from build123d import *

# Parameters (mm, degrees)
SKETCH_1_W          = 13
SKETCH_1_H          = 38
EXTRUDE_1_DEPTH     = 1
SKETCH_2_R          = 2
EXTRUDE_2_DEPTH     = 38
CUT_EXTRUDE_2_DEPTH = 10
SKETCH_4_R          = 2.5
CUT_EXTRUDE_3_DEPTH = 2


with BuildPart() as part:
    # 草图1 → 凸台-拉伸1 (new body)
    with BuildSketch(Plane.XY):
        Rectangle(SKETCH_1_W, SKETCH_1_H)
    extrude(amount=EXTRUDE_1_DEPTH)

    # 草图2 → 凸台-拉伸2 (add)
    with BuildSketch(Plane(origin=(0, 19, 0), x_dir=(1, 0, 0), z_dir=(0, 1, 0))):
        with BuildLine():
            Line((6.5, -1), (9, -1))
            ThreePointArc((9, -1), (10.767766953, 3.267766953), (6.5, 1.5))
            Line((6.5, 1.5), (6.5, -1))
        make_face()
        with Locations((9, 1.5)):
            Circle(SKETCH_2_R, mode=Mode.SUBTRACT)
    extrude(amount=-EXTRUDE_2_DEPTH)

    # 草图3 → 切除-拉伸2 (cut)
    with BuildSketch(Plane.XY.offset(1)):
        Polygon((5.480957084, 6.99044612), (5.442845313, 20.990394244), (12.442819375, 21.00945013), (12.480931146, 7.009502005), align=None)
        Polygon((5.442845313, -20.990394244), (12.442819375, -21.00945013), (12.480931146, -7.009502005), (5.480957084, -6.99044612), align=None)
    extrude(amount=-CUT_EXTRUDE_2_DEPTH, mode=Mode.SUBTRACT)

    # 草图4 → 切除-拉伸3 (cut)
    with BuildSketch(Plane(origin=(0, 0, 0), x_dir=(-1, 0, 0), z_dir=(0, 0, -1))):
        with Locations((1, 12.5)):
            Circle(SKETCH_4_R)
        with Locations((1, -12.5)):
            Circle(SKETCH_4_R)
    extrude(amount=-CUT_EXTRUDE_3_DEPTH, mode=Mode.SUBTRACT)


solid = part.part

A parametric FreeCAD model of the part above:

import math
import FreeCAD as App
import Part
import Sketcher
from FreeCAD import Vector


def add_polygon(sketch, points):
    """Adds a closed chain of lines whose ends are joined by coincident constraints."""
    first, n = sketch.GeometryCount, len(points)
    for a, b in zip(points, points[1:] + points[:1]):
        sketch.addGeometry(Part.LineSegment(App.Vector(*a, 0), App.Vector(*b, 0)), False)
    for i in range(n):
        sketch.addConstraint(Sketcher.Constraint("Coincident", first + i, 2, first + (i + 1) % n, 1))

doc = App.newDocument("Part")
body = doc.addObject("PartDesign::Body", "Body")

sketch1 = doc.addObject("Sketcher::SketchObject", "Sketch")
body.addObject(sketch1)
sketch1.AttachmentSupport = (doc.XY_Plane, [""])
sketch1.MapMode = "FlatFace"
add_polygon(sketch1, [(-6, 19), (-6, -19), (6, -19), (6, 19)])
sketch1.addConstraint([
    Sketcher.Constraint("Vertical", 0),
    Sketcher.Constraint("Horizontal", 1),
    Sketcher.Constraint("Vertical", 2),
    Sketcher.Constraint("Horizontal", 3),
    Sketcher.Constraint("Symmetric", 0, 2, 2, 2, -1, 1),
    Sketcher.Constraint("DistanceX", 1, 1, 1, 2, 13.0),
    Sketcher.Constraint("DistanceY", 0, 2, 0, 1, 38.0),
])
pad1 = doc.addObject("PartDesign::Pad", "Pad")
body.addObject(pad1)
pad1.Profile = sketch1
pad1.Length = 1

sketch2 = doc.addObject("Sketcher::SketchObject", "Sketch001")
body.addObject(sketch2)
sketch2.AttachmentSupport = (doc.XZ_Plane, [""])
sketch2.MapMode = "FlatFace"
sketch2.AttachmentOffset = App.Placement(Vector(0, 0, -19), App.Rotation())
sketch2.addGeometry([
    Part.LineSegment(Vector(6.5, 1, 0), Vector(9, 1, 0)),
    Part.ArcOfCircle(Part.Circle(Vector(9, -1.5, 0), Vector(0, 0, 1), 2.5), math.radians(180), math.radians(450)),
    Part.LineSegment(Vector(6.5, -1.5, 0), Vector(6.5, 1, 0)),
    Part.Circle(Vector(9, -1.5, 0), Vector(0, 0, 1), 2),
], False)
sketch2.addConstraint([
    Sketcher.Constraint("Tangent", 0, 2, 1, 2),
    Sketcher.Constraint("Tangent", 1, 1, 2, 1),
    Sketcher.Constraint("Coincident", 2, 2, 0, 1),
    Sketcher.Constraint("Horizontal", 0),
    Sketcher.Constraint("Vertical", 2),
    Sketcher.Constraint("Coincident", 3, 3, 1, 3),
    Sketcher.Constraint("Diameter", 3, 4.0),
    Sketcher.Constraint("Radius", 1, 2.5),
    Sketcher.Constraint("DistanceX", -1, 1, 1, 3, 9.0),
    Sketcher.Constraint("DistanceY", -1, 1, 0, 2, 1.0),
])
pad2 = doc.addObject("PartDesign::Pad", "Pad001")
body.addObject(pad2)
pad2.Profile = sketch2
pad2.Length = 38

sketch3 = doc.addObject("Sketcher::SketchObject", "Sketch002")
body.addObject(sketch3)
sketch3.AttachmentSupport = (doc.XY_Plane, [""])
sketch3.MapMode = "FlatFace"
sketch3.AttachmentOffset = App.Placement(Vector(0, 0, 1), App.Rotation())
add_polygon(sketch3, [(5, 21), (5, 7), (12, 7), (12, 21)])
add_polygon(sketch3, [(5, -21), (12, -21), (12, -7), (5, -7)])
sketch3.addConstraint([
    Sketcher.Constraint("Symmetric", 2, 2, 4, 2, -1),
    Sketcher.Constraint("Symmetric", 1, 2, 5, 2, -1),
    Sketcher.Constraint("Symmetric", 0, 2, 6, 2, -1),
    Sketcher.Constraint("Symmetric", 3, 2, 7, 2, -1),
    Sketcher.Constraint("Perpendicular", 0, 1),
    Sketcher.Constraint("Perpendicular", 1, 2),
    Sketcher.Constraint("Perpendicular", 2, 3),
    Sketcher.Constraint("Distance", 0, 14.0),
    Sketcher.Constraint("Distance", 1, 7.0),
    Sketcher.Constraint("DistanceY", 4, 2, 2, 2, 42.0189),
    Sketcher.Constraint("DistanceX", -1, 1, 1, 2, 12.480931),
    Sketcher.Constraint("DistanceX", -1, 1, 2, 2, 12.442819),
])
pocket1 = doc.addObject("PartDesign::Pocket", "Pocket")
body.addObject(pocket1)
pocket1.Profile = sketch3
pocket1.Length = 10

sketch4 = doc.addObject("Sketcher::SketchObject", "Sketch003")
body.addObject(sketch4)
sketch4.AttachmentSupport = (doc.XY_Plane, [""])
sketch4.MapMode = "FlatFace"
sketch4.addGeometry([
    Part.Circle(Vector(-1, 12.5, 0), Vector(0, 0, 1), 2.5),
    Part.Circle(Vector(-1, -12.5, 0), Vector(0, 0, 1), 2.5),
], False)
sketch4.addConstraint([
    Sketcher.Constraint("Equal", 0, 1),
    Sketcher.Constraint("Symmetric", 0, 3, 1, 3, -1),
    Sketcher.Constraint("Diameter", 0, 5.0),
    Sketcher.Constraint("DistanceX", 0, 3, -1, 1, 1.0),
    Sketcher.Constraint("DistanceY", 1, 3, 0, 3, 25.0),
])
pocket2 = doc.addObject("PartDesign::Pocket", "Pocket001")
body.addObject(pocket2)
pocket2.Profile = sketch4
pocket2.Length = 2
pocket2.Reversed = True

doc.recompute()
